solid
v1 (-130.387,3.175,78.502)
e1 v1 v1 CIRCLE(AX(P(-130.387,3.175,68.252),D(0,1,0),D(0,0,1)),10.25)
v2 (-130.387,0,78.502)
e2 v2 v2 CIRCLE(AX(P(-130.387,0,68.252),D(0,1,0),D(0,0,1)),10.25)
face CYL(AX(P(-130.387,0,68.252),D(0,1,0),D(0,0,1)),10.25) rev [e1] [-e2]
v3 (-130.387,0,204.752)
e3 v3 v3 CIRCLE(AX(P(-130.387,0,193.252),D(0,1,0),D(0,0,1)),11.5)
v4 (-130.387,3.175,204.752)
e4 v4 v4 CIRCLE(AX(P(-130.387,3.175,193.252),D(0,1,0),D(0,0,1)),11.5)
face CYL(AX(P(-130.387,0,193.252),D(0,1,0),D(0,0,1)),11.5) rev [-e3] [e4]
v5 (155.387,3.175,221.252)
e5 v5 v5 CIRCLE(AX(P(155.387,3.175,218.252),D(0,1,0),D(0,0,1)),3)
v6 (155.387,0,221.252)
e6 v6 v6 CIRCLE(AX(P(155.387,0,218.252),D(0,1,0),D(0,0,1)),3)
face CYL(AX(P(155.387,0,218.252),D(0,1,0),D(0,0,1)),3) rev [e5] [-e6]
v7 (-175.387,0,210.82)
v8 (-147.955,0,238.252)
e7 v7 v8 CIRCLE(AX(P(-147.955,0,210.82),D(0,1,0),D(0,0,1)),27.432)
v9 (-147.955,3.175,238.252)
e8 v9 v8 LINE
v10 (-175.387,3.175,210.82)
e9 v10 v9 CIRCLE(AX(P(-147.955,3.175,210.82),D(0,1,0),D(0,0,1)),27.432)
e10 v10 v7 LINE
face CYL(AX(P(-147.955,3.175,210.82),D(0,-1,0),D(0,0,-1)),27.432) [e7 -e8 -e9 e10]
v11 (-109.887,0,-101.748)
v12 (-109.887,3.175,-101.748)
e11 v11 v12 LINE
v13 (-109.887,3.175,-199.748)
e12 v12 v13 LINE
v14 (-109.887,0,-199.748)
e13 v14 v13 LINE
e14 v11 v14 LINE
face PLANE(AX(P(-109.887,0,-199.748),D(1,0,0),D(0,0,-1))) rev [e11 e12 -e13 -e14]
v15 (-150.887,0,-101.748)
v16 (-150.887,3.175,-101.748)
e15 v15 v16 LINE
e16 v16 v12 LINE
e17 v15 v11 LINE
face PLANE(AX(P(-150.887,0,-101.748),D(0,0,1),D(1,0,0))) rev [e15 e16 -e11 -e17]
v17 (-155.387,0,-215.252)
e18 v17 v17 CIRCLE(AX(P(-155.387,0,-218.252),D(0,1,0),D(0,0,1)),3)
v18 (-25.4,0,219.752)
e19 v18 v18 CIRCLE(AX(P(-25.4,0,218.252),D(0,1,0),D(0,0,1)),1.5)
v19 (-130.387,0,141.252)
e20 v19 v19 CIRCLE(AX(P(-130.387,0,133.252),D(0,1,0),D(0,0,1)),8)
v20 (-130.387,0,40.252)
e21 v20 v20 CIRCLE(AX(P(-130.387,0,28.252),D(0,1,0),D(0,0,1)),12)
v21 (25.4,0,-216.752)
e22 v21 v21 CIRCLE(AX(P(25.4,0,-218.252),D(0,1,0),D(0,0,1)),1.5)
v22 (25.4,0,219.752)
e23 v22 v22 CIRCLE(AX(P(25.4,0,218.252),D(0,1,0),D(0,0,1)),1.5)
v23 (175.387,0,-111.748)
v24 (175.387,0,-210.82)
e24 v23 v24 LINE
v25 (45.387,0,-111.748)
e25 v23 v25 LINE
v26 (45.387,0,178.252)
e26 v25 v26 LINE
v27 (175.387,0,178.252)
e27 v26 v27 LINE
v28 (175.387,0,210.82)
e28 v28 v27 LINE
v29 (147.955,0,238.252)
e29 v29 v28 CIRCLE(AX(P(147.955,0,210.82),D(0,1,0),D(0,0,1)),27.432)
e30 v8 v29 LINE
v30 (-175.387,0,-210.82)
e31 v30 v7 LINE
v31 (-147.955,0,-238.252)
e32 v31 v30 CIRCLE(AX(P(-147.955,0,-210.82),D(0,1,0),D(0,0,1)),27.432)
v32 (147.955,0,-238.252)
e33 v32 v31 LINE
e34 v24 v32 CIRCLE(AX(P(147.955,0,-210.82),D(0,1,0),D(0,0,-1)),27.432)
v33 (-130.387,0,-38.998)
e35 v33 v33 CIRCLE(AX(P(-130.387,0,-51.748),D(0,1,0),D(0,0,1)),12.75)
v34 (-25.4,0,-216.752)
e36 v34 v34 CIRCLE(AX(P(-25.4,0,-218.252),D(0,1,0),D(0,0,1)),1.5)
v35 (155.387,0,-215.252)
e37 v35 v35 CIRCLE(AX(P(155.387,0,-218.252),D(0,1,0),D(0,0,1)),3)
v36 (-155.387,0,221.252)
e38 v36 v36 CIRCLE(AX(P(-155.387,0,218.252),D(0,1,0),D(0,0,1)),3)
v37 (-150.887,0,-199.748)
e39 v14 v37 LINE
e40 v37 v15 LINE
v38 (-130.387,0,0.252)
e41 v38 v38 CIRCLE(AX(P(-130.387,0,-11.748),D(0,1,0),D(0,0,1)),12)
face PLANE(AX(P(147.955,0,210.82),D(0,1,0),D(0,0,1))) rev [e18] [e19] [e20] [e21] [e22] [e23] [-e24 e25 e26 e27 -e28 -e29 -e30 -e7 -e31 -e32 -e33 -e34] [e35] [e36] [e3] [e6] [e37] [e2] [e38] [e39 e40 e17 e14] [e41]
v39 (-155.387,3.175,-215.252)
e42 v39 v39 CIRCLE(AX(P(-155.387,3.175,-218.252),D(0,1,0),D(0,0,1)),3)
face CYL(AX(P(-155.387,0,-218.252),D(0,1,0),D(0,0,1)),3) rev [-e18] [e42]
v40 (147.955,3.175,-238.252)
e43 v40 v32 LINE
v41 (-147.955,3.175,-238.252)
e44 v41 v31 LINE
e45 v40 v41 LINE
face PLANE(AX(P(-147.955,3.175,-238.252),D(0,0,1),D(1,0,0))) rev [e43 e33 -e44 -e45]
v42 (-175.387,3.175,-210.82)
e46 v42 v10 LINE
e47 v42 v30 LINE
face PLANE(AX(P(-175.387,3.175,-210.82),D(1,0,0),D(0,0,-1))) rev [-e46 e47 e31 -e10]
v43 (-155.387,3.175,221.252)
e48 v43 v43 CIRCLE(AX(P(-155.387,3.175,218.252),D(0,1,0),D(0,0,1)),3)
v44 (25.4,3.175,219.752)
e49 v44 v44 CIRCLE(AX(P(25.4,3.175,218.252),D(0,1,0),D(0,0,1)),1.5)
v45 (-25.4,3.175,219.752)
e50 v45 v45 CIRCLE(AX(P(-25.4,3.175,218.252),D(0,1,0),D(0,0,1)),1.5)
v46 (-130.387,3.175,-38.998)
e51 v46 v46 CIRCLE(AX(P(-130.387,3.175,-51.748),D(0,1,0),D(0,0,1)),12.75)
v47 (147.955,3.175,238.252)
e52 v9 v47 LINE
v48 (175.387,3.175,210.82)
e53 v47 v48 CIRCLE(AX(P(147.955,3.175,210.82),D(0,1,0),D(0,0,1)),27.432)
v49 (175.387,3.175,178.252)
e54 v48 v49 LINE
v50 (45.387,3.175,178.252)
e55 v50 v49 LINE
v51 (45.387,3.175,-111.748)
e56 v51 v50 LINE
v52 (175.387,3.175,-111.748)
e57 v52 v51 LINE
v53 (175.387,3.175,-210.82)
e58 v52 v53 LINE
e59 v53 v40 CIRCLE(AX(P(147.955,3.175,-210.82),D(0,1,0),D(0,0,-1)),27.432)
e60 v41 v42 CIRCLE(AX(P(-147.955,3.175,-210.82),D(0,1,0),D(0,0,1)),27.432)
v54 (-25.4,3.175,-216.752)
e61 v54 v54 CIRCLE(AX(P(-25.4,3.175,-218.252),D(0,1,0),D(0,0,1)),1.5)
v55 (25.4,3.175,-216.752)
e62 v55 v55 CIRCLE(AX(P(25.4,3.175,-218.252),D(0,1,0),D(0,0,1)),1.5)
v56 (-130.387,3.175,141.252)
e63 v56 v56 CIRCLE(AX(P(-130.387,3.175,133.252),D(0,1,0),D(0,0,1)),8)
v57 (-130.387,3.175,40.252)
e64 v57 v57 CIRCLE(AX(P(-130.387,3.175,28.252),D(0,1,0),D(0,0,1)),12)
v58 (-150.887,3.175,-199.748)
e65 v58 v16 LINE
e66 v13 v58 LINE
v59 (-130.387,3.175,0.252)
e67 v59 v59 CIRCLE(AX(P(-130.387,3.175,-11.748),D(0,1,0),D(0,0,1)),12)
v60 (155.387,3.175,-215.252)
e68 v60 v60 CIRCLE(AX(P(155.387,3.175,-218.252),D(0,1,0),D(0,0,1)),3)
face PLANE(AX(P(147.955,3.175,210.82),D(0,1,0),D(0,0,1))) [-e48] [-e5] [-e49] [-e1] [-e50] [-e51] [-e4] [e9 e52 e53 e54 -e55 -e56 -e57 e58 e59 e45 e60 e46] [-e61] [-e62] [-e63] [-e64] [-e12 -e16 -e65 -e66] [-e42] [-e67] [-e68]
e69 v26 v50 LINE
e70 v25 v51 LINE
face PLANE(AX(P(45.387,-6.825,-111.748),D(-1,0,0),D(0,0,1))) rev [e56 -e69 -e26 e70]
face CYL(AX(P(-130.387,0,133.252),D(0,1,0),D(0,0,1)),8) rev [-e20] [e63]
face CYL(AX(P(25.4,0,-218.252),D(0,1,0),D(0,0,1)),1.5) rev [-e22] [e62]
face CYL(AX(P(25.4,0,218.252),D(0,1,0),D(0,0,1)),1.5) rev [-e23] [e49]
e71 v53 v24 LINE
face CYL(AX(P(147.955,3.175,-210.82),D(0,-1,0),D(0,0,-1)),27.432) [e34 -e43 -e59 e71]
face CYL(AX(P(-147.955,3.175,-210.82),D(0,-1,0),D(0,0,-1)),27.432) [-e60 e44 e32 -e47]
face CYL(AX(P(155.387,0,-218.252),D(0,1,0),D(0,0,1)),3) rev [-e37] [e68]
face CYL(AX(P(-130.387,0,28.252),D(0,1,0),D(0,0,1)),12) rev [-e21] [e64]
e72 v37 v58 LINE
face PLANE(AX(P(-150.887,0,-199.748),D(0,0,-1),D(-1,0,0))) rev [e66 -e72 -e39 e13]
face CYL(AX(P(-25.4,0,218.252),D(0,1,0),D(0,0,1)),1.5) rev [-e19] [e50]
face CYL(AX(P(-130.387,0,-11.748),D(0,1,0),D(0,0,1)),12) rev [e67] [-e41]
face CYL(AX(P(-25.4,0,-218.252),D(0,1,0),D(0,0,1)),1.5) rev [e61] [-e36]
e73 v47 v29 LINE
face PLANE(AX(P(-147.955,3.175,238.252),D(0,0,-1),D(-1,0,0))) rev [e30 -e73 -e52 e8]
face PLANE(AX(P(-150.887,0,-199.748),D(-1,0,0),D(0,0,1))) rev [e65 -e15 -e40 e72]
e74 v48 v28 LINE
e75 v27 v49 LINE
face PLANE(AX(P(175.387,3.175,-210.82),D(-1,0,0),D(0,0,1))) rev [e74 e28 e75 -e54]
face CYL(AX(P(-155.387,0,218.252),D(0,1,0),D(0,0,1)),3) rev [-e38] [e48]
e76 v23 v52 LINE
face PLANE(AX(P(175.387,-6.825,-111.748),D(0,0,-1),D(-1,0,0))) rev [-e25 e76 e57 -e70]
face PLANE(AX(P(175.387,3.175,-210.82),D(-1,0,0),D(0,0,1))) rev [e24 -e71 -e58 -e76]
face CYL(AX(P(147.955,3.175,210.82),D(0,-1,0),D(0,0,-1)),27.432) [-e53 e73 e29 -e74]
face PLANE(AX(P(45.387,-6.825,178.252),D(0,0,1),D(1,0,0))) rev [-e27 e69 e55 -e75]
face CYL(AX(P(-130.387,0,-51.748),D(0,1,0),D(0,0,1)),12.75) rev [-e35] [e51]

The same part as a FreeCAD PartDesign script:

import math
import FreeCAD as App
import Part
import Sketcher
from FreeCAD import Vector

doc = App.newDocument("Part")
body = doc.addObject("PartDesign::Body", "Body")

sketch1 = body.newObject("Sketcher::SketchObject", "Sketch")
sketch1.AttachmentSupport = (doc.getObject("XZ_Plane"), [""])
sketch1.MapMode = "FlatFace"
sketch1.addGeometry([
    Part.LineSegment(Vector(148, -238, 0), Vector(-148, -238, 0)),
    Part.ArcOfCircle(Part.Circle(Vector(-148, -211, 0), Vector(0, 0, 1), 27), math.radians(180), math.radians(270)),
    Part.LineSegment(Vector(-175, -211, 0), Vector(-175, 211, 0)),
    Part.ArcOfCircle(Part.Circle(Vector(-148, 211, 0), Vector(0, 0, 1), 27), math.radians(90), math.radians(180)),
    Part.LineSegment(Vector(-148, 238, 0), Vector(148, 238, 0)),
    Part.ArcOfCircle(Part.Circle(Vector(148, 211, 0), Vector(0, 0, 1), 27), math.radians(0), math.radians(90)),
    Part.LineSegment(Vector(175, 211, 0), Vector(175, -211, 0)),
    Part.ArcOfCircle(Part.Circle(Vector(148, -211, 0), Vector(0, 0, 1), 27), math.radians(-90), math.radians(0)),
], False)
sketch1.addConstraint([
    Sketcher.Constraint("Tangent", 0, 2, 1, 2),
    Sketcher.Constraint("Tangent", 1, 1, 2, 1),
    Sketcher.Constraint("Tangent", 2, 2, 3, 2),
    Sketcher.Constraint("Tangent", 3, 1, 4, 1),
    Sketcher.Constraint("Tangent", 4, 2, 5, 2),
    Sketcher.Constraint("Tangent", 5, 1, 6, 1),
    Sketcher.Constraint("Tangent", 6, 2, 7, 2),
    Sketcher.Constraint("Tangent", 7, 1, 0, 1),
    Sketcher.Constraint("Horizontal", 0),
    Sketcher.Constraint("Vertical", 2),
    Sketcher.Constraint("Horizontal", 4),
    Sketcher.Constraint("Vertical", 6),
    Sketcher.Constraint("Equal", 1, 3),
    Sketcher.Constraint("Equal", 3, 5),
    Sketcher.Constraint("Equal", 5, 7),
    Sketcher.Constraint("Symmetric", 1, 3, 5, 3, -1, 1),
    Sketcher.Constraint("Radius", 1, 27.432),
    Sketcher.Constraint("DistanceX", 0, 2, 0, 1, 295.91),
    Sketcher.Constraint("DistanceY", 2, 1, 2, 2, 421.64),
])
pad1 = body.newObject("PartDesign::Pad", "Pad")
pad1.Profile = sketch1
pad1.Length = 3.175
pad1.Reversed = True

sketch2 = body.newObject("Sketcher::SketchObject", "Sketch001")
sketch2.AttachmentSupport = (doc.getObject("XZ_Plane"), [""])
sketch2.MapMode = "FlatFace"
sketch2.AttachmentOffset = App.Placement(Vector(0, 0, -3.175), App.Rotation())
sketch2.addGeometry([
    Part.LineSegment(Vector(45, -112, 0), Vector(45, 178, 0)),
    Part.LineSegment(Vector(45, 178, 0), Vector(175, 178, 0)),
    Part.LineSegment(Vector(175, 178, 0), Vector(175, -112, 0)),
    Part.LineSegment(Vector(175, -112, 0), Vector(45, -112, 0)),
], False)
sketch2.addConstraint([
    Sketcher.Constraint("Coincident", 0, 2, 1, 1),
    Sketcher.Constraint("Coincident", 1, 2, 2, 1),
    Sketcher.Constraint("Coincident", 2, 2, 3, 1),
    Sketcher.Constraint("Coincident", 3, 2, 0, 1),
    Sketcher.Constraint("Vertical", 0),
    Sketcher.Constraint("Horizontal", 1),
    Sketcher.Constraint("Vertical", 2),
    Sketcher.Constraint("Horizontal", 3),
    Sketcher.Constraint("DistanceX", 1, 1, 1, 2, 130.0),
    Sketcher.Constraint("DistanceY", 0, 1, 0, 2, 290.0),
    Sketcher.Constraint("DistanceX", -1, 1, 0, 2, 45.387),
    Sketcher.Constraint("DistanceY", -1, 1, 0, 2, 178.252),
])
pocket1 = body.newObject("PartDesign::Pocket", "Pocket")
pocket1.Profile = sketch2
pocket1.Length = 10
pocket1.Reversed = True

sketch3 = body.newObject("Sketcher::SketchObject", "Sketch002")
sketch3.AttachmentSupport = (doc.getObject("XZ_Plane"), [""])
sketch3.MapMode = "FlatFace"
sketch3.AttachmentOffset = App.Placement(Vector(0, 0, -3.175), App.Rotation())
sketch3.addGeometry([
    Part.Circle(Vector(-130.4, 193.3, 0), Vector(0, 0, 1), 11.5),
    Part.Circle(Vector(-130.4, 133.3, 0), Vector(0, 0, 1), 8),
    Part.Circle(Vector(-130.4, 68.3, 0), Vector(0, 0, 1), 10.2),
    Part.Circle(Vector(-130.4, 28.3, 0), Vector(0, 0, 1), 12),
    Part.Circle(Vector(-130.4, -11.7, 0), Vector(0, 0, 1), 12),
    Part.Circle(Vector(-130.4, -51.7, 0), Vector(0, 0, 1), 12.8),
    Part.Circle(Vector(155.4, -218.3, 0), Vector(0, 0, 1), 3),
    Part.Circle(Vector(155.4, 218.3, 0), Vector(0, 0, 1), 3),
    Part.Circle(Vector(-155.4, 218.3, 0), Vector(0, 0, 1), 3),
    Part.Circle(Vector(-155.4, -218.3, 0), Vector(0, 0, 1), 3),
    Part.Circle(Vector(-25.4, -218.3, 0), Vector(0, 0, 1), 1.5),
    Part.Circle(Vector(25.4, -218.3, 0), Vector(0, 0, 1), 1.5),
    Part.Circle(Vector(-25.4, 218.3, 0), Vector(0, 0, 1), 1.5),
    Part.Circle(Vector(25.4, 218.3, 0), Vector(0, 0, 1), 1.5),
    Part.LineSegment(Vector(-150.9, -199.7, 0), Vector(-150.9, -101.7, 0)),
    Part.LineSegment(Vector(-150.9, -101.7, 0), Vector(-109.9, -101.7, 0)),
    Part.LineSegment(Vector(-109.9, -101.7, 0), Vector(-109.9, -199.7, 0)),
    Part.LineSegment(Vector(-109.9, -199.7, 0), Vector(-150.9, -199.7, 0)),
], False)
sketch3.addConstraint([
    Sketcher.Constraint("Coincident", 14, 2, 15, 1),
    Sketcher.Constraint("Coincident", 15, 2, 16, 1),
    Sketcher.Constraint("Coincident", 16, 2, 17, 1),
    Sketcher.Constraint("Coincident", 17, 2, 14, 1),
    Sketcher.Constraint("Vertical", 14),
    Sketcher.Constraint("Horizontal", 15),
    Sketcher.Constraint("Vertical", 16),
    Sketcher.Constraint("Horizontal", 17),
    Sketcher.Constraint("Equal", 3, 4),
    Sketcher.Constraint("Equal", 6, 7),
    Sketcher.Constraint("Equal", 7, 8),
    Sketcher.Constraint("Equal", 8, 9),
    Sketcher.Constraint("Equal", 10, 11),
    Sketcher.Constraint("Equal", 11, 12),
    Sketcher.Constraint("Equal", 12, 13),
    Sketcher.Constraint("Symmetric", 6, 3, 8, 3, -1, 1),
    Sketcher.Constraint("Symmetric", 7, 3, 9, 3, -1, 1),
    Sketcher.Constraint("Symmetric", 11, 3, 12, 3, -1, 1),
    Sketcher.Constraint("Symmetric", 10, 3, 13, 3, -1, 1),
    Sketcher.Constraint("Symmetric", 7, 3, 8, 3, -2),
    Sketcher.Constraint("Symmetric", 10, 3, 11, 3, -2),
    Sketcher.Constraint("Horizontal", 9, 3, 10, 3),
    Sketcher.Constraint("Vertical", 0, 3, 1, 3),
    Sketcher.Constraint("Vertical", 1, 3, 2, 3),
    Sketcher.Constraint("Vertical", 2, 3, 3, 3),
    Sketcher.Constraint("Vertical", 3, 3, 4, 3),
    Sketcher.Constraint("Vertical", 4, 3, 5, 3),
    Sketcher.Constraint("Diameter", 0, 23.0),
    Sketcher.Constraint("Diameter", 1, 16.0),
    Sketcher.Constraint("Diameter", 3, 24.0),
    Sketcher.Constraint("Diameter", 6, 6.0),
    Sketcher.Constraint("Diameter", 10, 3.0),
    Sketcher.Constraint("Diameter", 2, 20.5),
    Sketcher.Constraint("Diameter", 5, 25.5),
    Sketcher.Constraint("DistanceX", 15, 1, 15, 2, 41.0),
    Sketcher.Constraint("DistanceY", 14, 1, 14, 2, 98.0),
    Sketcher.Constraint("DistanceY", 1, 3, 0, 3, 60.0),
    Sketcher.Constraint("DistanceY", 2, 3, 1, 3, 65.0),
    Sketcher.Constraint("DistanceY", 3, 3, 2, 3, 40.0),
    Sketcher.Constraint("DistanceY", 4, 3, 3, 3, 40.0),
    Sketcher.Constraint("DistanceY", 5, 3, 4, 3, 40.0),
    Sketcher.Constraint("DistanceY", 0, 3, 7, 3, 25.0),
    Sketcher.Constraint("DistanceX", 8, 3, 0, 3, 25.0),
    Sketcher.Constraint("DistanceY", 14, 2, 5, 3, 50.0),
    Sketcher.Constraint("DistanceX", 10, 3, -1, 1, 25.4),
    Sketcher.Constraint("DistanceX", 14, 2, 5, 3, 20.5),
    Sketcher.Constraint("DistanceX", 0, 3, -1, 1, 130.387),
    Sketcher.Constraint("DistanceY", -1, 1, 0, 3, 193.252),
])
pocket2 = body.newObject("PartDesign::Pocket", "Pocket001")
pocket2.Profile = sketch3
pocket2.Type = "ThroughAll"
pocket2.Reversed = True

doc.recompute()
